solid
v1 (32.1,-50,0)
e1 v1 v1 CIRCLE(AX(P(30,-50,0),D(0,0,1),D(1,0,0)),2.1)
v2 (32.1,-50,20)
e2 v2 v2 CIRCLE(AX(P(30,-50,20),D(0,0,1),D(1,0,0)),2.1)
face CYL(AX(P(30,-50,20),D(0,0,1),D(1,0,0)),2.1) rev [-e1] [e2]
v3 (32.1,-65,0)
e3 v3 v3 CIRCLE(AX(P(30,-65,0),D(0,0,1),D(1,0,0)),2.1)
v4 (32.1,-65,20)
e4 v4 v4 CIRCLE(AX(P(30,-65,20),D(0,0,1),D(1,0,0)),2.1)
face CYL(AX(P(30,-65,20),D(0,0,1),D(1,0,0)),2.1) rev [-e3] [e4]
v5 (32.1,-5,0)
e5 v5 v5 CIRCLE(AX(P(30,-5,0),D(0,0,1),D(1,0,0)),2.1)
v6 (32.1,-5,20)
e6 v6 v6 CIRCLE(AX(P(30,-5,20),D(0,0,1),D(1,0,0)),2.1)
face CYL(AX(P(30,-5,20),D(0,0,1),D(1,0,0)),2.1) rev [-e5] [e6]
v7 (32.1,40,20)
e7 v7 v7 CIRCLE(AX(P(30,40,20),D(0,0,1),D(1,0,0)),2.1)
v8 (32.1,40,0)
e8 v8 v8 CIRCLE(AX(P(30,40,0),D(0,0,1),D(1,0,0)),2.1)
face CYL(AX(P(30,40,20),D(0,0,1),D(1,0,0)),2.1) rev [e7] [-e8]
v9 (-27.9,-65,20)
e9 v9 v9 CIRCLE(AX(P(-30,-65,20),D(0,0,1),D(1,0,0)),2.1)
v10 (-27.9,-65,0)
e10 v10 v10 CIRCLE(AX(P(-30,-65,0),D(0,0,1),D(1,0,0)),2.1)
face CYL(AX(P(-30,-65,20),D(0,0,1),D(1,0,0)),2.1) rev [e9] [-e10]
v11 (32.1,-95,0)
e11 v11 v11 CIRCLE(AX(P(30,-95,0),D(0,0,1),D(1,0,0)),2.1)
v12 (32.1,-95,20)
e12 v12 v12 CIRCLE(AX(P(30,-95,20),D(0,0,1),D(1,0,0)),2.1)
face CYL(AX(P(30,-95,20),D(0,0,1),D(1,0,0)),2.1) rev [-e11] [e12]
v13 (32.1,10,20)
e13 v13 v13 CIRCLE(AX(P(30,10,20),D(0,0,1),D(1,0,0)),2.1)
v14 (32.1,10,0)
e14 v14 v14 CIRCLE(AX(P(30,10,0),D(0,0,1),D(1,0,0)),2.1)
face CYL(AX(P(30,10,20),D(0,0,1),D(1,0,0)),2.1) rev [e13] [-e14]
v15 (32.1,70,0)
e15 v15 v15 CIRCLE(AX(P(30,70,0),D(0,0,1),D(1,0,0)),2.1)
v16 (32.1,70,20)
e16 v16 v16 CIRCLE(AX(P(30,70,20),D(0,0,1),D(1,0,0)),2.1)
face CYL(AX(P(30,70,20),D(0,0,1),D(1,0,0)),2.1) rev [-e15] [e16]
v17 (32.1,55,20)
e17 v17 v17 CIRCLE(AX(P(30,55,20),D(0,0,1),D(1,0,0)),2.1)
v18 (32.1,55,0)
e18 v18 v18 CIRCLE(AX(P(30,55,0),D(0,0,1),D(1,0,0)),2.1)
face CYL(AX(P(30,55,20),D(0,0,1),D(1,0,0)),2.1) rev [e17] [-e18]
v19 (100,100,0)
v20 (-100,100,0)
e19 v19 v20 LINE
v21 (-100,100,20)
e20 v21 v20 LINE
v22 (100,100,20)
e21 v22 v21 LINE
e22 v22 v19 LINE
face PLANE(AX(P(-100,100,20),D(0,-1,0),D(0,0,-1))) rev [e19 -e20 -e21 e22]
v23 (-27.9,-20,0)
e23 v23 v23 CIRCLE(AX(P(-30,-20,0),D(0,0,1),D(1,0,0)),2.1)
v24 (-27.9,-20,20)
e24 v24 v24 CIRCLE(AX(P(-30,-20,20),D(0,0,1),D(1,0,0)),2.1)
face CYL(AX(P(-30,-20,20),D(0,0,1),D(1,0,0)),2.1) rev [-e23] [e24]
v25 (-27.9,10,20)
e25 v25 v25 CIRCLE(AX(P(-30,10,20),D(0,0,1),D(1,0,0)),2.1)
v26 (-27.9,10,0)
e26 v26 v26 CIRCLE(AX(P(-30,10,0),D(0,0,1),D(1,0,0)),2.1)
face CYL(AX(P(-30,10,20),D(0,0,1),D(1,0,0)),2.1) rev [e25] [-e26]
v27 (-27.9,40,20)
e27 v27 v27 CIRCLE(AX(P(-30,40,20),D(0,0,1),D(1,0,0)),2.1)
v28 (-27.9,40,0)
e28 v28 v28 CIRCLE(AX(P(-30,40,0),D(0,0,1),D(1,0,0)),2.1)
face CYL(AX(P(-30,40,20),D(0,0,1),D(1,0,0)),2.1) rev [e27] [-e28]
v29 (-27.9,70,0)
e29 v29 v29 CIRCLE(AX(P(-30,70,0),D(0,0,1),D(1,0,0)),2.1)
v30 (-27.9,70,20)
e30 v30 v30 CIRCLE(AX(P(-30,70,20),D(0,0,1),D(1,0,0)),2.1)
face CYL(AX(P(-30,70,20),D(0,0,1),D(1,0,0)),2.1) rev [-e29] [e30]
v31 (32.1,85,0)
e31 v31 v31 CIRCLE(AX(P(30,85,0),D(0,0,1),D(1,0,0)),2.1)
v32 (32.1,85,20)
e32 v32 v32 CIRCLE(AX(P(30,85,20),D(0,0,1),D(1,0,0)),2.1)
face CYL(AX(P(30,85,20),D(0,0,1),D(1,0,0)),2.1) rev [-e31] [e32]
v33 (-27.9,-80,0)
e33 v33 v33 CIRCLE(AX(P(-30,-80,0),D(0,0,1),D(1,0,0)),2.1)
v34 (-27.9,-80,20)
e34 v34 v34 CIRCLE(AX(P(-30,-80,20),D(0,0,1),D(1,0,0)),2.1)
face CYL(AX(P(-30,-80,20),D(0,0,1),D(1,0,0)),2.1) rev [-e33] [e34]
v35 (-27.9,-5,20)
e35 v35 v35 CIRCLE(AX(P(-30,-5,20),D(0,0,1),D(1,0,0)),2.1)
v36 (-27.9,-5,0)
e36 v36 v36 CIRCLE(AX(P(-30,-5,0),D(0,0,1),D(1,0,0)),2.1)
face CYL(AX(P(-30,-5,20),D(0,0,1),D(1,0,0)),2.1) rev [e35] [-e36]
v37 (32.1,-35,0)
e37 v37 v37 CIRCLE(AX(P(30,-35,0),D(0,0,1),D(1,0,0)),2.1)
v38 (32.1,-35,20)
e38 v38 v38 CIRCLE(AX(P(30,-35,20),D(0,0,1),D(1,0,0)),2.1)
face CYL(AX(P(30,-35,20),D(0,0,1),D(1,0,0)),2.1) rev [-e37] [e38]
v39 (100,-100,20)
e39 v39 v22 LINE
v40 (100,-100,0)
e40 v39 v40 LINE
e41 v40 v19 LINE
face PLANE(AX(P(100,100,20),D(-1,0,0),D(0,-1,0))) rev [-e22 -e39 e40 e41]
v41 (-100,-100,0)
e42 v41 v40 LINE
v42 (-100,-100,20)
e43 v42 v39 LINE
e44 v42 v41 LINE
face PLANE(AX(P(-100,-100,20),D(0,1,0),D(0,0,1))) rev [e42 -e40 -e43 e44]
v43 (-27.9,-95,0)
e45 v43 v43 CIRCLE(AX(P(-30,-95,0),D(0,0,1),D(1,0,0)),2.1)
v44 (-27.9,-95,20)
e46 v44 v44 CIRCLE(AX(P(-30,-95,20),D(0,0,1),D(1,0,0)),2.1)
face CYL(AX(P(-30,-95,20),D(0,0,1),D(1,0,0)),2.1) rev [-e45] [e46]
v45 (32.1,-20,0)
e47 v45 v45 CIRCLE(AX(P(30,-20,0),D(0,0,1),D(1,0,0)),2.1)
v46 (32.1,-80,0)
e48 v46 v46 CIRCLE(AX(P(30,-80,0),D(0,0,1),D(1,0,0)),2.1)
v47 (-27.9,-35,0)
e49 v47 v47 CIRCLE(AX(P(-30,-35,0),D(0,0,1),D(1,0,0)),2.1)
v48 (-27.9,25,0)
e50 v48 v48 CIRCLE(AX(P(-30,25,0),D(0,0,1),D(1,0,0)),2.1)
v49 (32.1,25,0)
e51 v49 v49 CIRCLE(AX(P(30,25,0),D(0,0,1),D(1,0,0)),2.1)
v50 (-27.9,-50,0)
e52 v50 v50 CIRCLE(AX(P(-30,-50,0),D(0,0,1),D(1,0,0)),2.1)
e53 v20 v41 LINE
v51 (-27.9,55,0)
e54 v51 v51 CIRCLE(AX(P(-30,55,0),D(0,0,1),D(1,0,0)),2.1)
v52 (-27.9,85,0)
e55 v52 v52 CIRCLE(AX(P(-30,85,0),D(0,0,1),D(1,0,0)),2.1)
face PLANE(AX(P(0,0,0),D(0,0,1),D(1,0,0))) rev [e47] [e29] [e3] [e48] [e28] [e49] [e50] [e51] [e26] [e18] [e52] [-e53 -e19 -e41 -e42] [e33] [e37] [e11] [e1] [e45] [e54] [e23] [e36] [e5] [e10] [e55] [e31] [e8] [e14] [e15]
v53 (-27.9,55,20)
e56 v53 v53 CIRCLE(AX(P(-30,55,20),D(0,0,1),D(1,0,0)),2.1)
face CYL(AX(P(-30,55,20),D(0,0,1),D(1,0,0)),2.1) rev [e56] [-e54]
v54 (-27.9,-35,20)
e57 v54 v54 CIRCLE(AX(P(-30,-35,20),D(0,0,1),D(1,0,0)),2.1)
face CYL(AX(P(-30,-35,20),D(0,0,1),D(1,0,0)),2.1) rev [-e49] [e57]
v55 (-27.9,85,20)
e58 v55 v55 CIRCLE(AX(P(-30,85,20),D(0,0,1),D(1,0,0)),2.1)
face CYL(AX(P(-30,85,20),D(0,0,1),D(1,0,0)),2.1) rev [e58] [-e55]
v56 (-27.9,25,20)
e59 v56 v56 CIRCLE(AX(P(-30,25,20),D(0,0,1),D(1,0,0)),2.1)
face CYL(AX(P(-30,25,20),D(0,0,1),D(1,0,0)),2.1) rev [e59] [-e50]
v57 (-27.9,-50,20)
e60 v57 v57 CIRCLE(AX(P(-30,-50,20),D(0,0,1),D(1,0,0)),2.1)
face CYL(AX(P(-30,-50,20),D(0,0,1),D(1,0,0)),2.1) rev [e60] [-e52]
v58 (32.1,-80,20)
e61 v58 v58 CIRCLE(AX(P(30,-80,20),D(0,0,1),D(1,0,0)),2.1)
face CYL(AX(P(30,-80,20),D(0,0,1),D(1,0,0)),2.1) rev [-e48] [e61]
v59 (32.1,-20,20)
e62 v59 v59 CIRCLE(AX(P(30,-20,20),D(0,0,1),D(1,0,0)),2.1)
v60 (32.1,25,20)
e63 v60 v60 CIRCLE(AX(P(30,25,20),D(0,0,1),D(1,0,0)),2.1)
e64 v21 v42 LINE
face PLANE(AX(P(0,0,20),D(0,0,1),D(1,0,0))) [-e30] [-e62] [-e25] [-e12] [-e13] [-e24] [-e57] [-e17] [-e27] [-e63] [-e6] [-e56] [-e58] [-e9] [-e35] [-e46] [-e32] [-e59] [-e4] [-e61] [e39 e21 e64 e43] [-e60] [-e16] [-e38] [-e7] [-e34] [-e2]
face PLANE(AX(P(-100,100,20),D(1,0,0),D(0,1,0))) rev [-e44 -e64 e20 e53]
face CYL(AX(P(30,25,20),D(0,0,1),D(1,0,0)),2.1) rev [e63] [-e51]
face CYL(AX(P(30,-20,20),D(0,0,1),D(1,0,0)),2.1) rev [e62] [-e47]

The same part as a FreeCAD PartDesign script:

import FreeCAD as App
import Part
import Sketcher
from FreeCAD import Vector
Q = App.Units.Quantity

doc = App.newDocument("Part")
body = doc.addObject("PartDesign::Body", "Body")

# Sketch on XY plane
sketch1 = doc.addObject("Sketcher::SketchObject", "Sketch")
body.addObject(sketch1)
sketch1.AttachmentSupport = (doc.XY_Plane, [""])
sketch1.MapMode = "FlatFace"
sketch1.addGeometry([
    Part.LineSegment(Vector(-100, 100, 0), Vector(-100, -100, 0)),
    Part.LineSegment(Vector(-100, -100, 0), Vector(100, -100, 0)),
    Part.LineSegment(Vector(100, -100, 0), Vector(100, 100, 0)),
    Part.LineSegment(Vector(100, 100, 0), Vector(-100, 100, 0)),
], False)
sketch1.addConstraint([
    Sketcher.Constraint("Coincident", 0, 2, 1, 1),
    Sketcher.Constraint("Coincident", 1, 2, 2, 1),
    Sketcher.Constraint("Coincident", 2, 2, 3, 1),
    Sketcher.Constraint("Coincident", 3, 2, 0, 1),
    Sketcher.Constraint("Vertical", 0),
    Sketcher.Constraint("Horizontal", 1),
    Sketcher.Constraint("Vertical", 2),
    Sketcher.Constraint("Horizontal", 3),
    Sketcher.Constraint("Symmetric", 0, 2, 2, 2, -1, 1),
    Sketcher.Constraint("Equal", 3, 0),
    Sketcher.Constraint("DistanceX", 1, 1, 1, 2, Q("200 mm")),
])
pad1 = doc.addObject("PartDesign::Pad", "Pad")
body.addObject(pad1)
pad1.Profile = sketch1
pad1.Length = 20

# Sketch on XY plane
sketch2 = doc.addObject("Sketcher::SketchObject", "Sketch001")
body.addObject(sketch2)
sketch2.AttachmentSupport = (doc.XY_Plane, [""])
sketch2.MapMode = "FlatFace"
sketch2.AttachmentOffset = App.Placement(Vector(0, 0, 20), App.Rotation())
sketch2.addGeometry(Part.Circle(Vector(30, -95, 0), Vector(0, 0, 1), 2.1), False)
sketch2.addConstraint([
    Sketcher.Constraint("Diameter", 0, Q("4.2 mm")),
    Sketcher.Constraint("DistanceX", -1, 1, 0, 3, Q("30 mm")),
    Sketcher.Constraint("DistanceY", 0, 3, -1, 1, Q("95 mm")),
])
doc.recompute()
hole = doc.addObject("PartDesign::Hole", "Hole")
body.addObject(hole)
hole.Profile = sketch2
hole.ThreadType = "None"
hole.Diameter = 4.2
hole.DepthType = "ThroughAll"
doc.recompute()

linearpattern = doc.addObject("PartDesign::LinearPattern", "LinearPattern")
body.addObject(linearpattern)
linearpattern.Originals = [hole]
linearpattern.Direction = (doc.Y_Axis, [""])
linearpattern.Mode = "offset"
linearpattern.Offset = 15
linearpattern.Occurrences = 13
body.Tip = linearpattern
doc.recompute()

mirrored = doc.addObject("PartDesign::Mirrored", "Mirrored")
body.addObject(mirrored)
mirrored.Originals = [hole]
mirrored.MirrorPlane = (doc.YZ_Plane, [""])
body.Tip = mirrored

# Sketch on XY plane
sketch3 = doc.addObject("Sketcher::SketchObject", "Sketch002")
body.addObject(sketch3)
sketch3.AttachmentSupport = (doc.XY_Plane, [""])
sketch3.MapMode = "FlatFace"
sketch3.AttachmentOffset = App.Placement(Vector(0, 0, 20), App.Rotation())
sketch3.addGeometry(Part.Circle(Vector(-30, -80, 0), Vector(0, 0, 1), 2.1), False)
sketch3.addConstraint([
    Sketcher.Constraint("Diameter", 0, Q("4.2 mm")),
    Sketcher.Constraint("DistanceX", 0, 3, -1, 1, Q("30 mm")),
    Sketcher.Constraint("DistanceY", 0, 3, -1, 1, Q("80 mm")),
])
doc.recompute()
hole2 = doc.addObject("PartDesign::Hole", "Hole001")
body.addObject(hole2)
hole2.Profile = sketch3
hole2.ThreadType = "None"
hole2.Diameter = 4.2
hole2.DepthType = "ThroughAll"

# Sketch on XY plane
sketch4 = doc.addObject("Sketcher::SketchObject", "Sketch003")
body.addObject(sketch4)
sketch4.AttachmentSupport = (doc.XY_Plane, [""])
sketch4.MapMode = "FlatFace"
sketch4.AttachmentOffset = App.Placement(Vector(0, 0, 20), App.Rotation())
sketch4.addGeometry(Part.Circle(Vector(-30, -65, 0), Vector(0, 0, 1), 2.1), False)
sketch4.addConstraint([
    Sketcher.Constraint("Diameter", 0, Q("4.2 mm")),
    Sketcher.Constraint("DistanceX", 0, 3, -1, 1, Q("30 mm")),
    Sketcher.Constraint("DistanceY", 0, 3, -1, 1, Q("65 mm")),
])
doc.recompute()
hole3 = doc.addObject("PartDesign::Hole", "Hole002")
body.addObject(hole3)
hole3.Profile = sketch4
hole3.ThreadType = "None"
hole3.Diameter = 4.2
hole3.DepthType = "ThroughAll"

# Sketch on XY plane
sketch5 = doc.addObject("Sketcher::SketchObject", "Sketch004")
body.addObject(sketch5)
sketch5.AttachmentSupport = (doc.XY_Plane, [""])
sketch5.MapMode = "FlatFace"
sketch5.AttachmentOffset = App.Placement(Vector(0, 0, 20), App.Rotation())
sketch5.addGeometry(Part.Circle(Vector(-30, -50, 0), Vector(0, 0, 1), 2.1), False)
sketch5.addConstraint([
    Sketcher.Constraint("Diameter", 0, Q("4.2 mm")),
    Sketcher.Constraint("DistanceX", 0, 3, -1, 1, Q("30 mm")),
    Sketcher.Constraint("DistanceY", 0, 3, -1, 1, Q("50 mm")),
])
doc.recompute()
hole4 = doc.addObject("PartDesign::Hole", "Hole003")
body.addObject(hole4)
hole4.Profile = sketch5
hole4.ThreadType = "None"
hole4.Diameter = 4.2
hole4.DepthType = "ThroughAll"

# Sketch on XY plane
sketch6 = doc.addObject("Sketcher::SketchObject", "Sketch005")
body.addObject(sketch6)
sketch6.AttachmentSupport = (doc.XY_Plane, [""])
sketch6.MapMode = "FlatFace"
sketch6.AttachmentOffset = App.Placement(Vector(0, 0, 20), App.Rotation())
sketch6.addGeometry(Part.Circle(Vector(-30, -35, 0), Vector(0, 0, 1), 2.1), False)
sketch6.addConstraint([
    Sketcher.Constraint("Diameter", 0, Q("4.2 mm")),
    Sketcher.Constraint("DistanceX", 0, 3, -1, 1, Q("30 mm")),
    Sketcher.Constraint("DistanceY", 0, 3, -1, 1, Q("35 mm")),
])
doc.recompute()
hole5 = doc.addObject("PartDesign::Hole", "Hole004")
body.addObject(hole5)
hole5.Profile = sketch6
hole5.ThreadType = "None"
hole5.Diameter = 4.2
hole5.DepthType = "ThroughAll"

# Sketch on XY plane
sketch7 = doc.addObject("Sketcher::SketchObject", "Sketch006")
body.addObject(sketch7)
sketch7.AttachmentSupport = (doc.XY_Plane, [""])
sketch7.MapMode = "FlatFace"
sketch7.AttachmentOffset = App.Placement(Vector(0, 0, 20), App.Rotation())
sketch7.addGeometry(Part.Circle(Vector(-30, -20, 0), Vector(0, 0, 1), 2.1), False)
sketch7.addConstraint([
    Sketcher.Constraint("Diameter", 0, Q("4.2 mm")),
    Sketcher.Constraint("DistanceX", 0, 3, -1, 1, Q("30 mm")),
    Sketcher.Constraint("DistanceY", 0, 3, -1, 1, Q("20 mm")),
])
doc.recompute()
hole6 = doc.addObject("PartDesign::Hole", "Hole005")
body.addObject(hole6)
hole6.Profile = sketch7
hole6.ThreadType = "None"
hole6.Diameter = 4.2
hole6.DepthType = "ThroughAll"

# Sketch on XY plane
sketch8 = doc.addObject("Sketcher::SketchObject", "Sketch007")
body.addObject(sketch8)
sketch8.AttachmentSupport = (doc.XY_Plane, [""])
sketch8.MapMode = "FlatFace"
sketch8.AttachmentOffset = App.Placement(Vector(0, 0, 20), App.Rotation())
sketch8.addGeometry(Part.Circle(Vector(-30, -5, 0), Vector(0, 0, 1), 2.1), False)
sketch8.addConstraint([
    Sketcher.Constraint("Diameter", 0, Q("4.2 mm")),
    Sketcher.Constraint("DistanceX", 0, 3, -1, 1, Q("30 mm")),
    Sketcher.Constraint("DistanceY", 0, 3, -1, 1, Q("5 mm")),
])
doc.recompute()
hole7 = doc.addObject("PartDesign::Hole", "Hole006")
body.addObject(hole7)
hole7.Profile = sketch8
hole7.ThreadType = "None"
hole7.Diameter = 4.2
hole7.DepthType = "ThroughAll"

# Sketch on XY plane
sketch9 = doc.addObject("Sketcher::SketchObject", "Sketch008")
body.addObject(sketch9)
sketch9.AttachmentSupport = (doc.XY_Plane, [""])
sketch9.MapMode = "FlatFace"
sketch9.AttachmentOffset = App.Placement(Vector(0, 0, 20), App.Rotation())
sketch9.addGeometry(Part.Circle(Vector(-30, 10, 0), Vector(0, 0, 1), 2.1), False)
sketch9.addConstraint([
    Sketcher.Constraint("Diameter", 0, Q("4.2 mm")),
    Sketcher.Constraint("DistanceX", 0, 3, -1, 1, Q("30 mm")),
    Sketcher.Constraint("DistanceY", -1, 1, 0, 3, Q("10 mm")),
])
doc.recompute()
hole8 = doc.addObject("PartDesign::Hole", "Hole007")
body.addObject(hole8)
hole8.Profile = sketch9
hole8.ThreadType = "None"
hole8.Diameter = 4.2
hole8.DepthType = "ThroughAll"

# Sketch on XY plane
sketch10 = doc.addObject("Sketcher::SketchObject", "Sketch009")
body.addObject(sketch10)
sketch10.AttachmentSupport = (doc.XY_Plane, [""])
sketch10.MapMode = "FlatFace"
sketch10.AttachmentOffset = App.Placement(Vector(0, 0, 20), App.Rotation())
sketch10.addGeometry(Part.Circle(Vector(-30, 25, 0), Vector(0, 0, 1), 2.1), False)
sketch10.addConstraint([
    Sketcher.Constraint("Diameter", 0, Q("4.2 mm")),
    Sketcher.Constraint("DistanceX", 0, 3, -1, 1, Q("30 mm")),
    Sketcher.Constraint("DistanceY", -1, 1, 0, 3, Q("25 mm")),
])
doc.recompute()
hole9 = doc.addObject("PartDesign::Hole", "Hole008")
body.addObject(hole9)
hole9.Profile = sketch10
hole9.ThreadType = "None"
hole9.Diameter = 4.2
hole9.DepthType = "ThroughAll"

# Sketch on XY plane
sketch11 = doc.addObject("Sketcher::SketchObject", "Sketch010")
body.addObject(sketch11)
sketch11.AttachmentSupport = (doc.XY_Plane, [""])
sketch11.MapMode = "FlatFace"
sketch11.AttachmentOffset = App.Placement(Vector(0, 0, 20), App.Rotation())
sketch11.addGeometry(Part.Circle(Vector(-30, 40, 0), Vector(0, 0, 1), 2.1), False)
sketch11.addConstraint([
    Sketcher.Constraint("Diameter", 0, Q("4.2 mm")),
    Sketcher.Constraint("DistanceX", 0, 3, -1, 1, Q("30 mm")),
    Sketcher.Constraint("DistanceY", -1, 1, 0, 3, Q("40 mm")),
])
doc.recompute()
hole10 = doc.addObject("PartDesign::Hole", "Hole009")
body.addObject(hole10)
hole10.Profile = sketch11
hole10.ThreadType = "None"
hole10.Diameter = 4.2
hole10.DepthType = "ThroughAll"

# Sketch on XY plane
sketch12 = doc.addObject("Sketcher::SketchObject", "Sketch011")
body.addObject(sketch12)
sketch12.AttachmentSupport = (doc.XY_Plane, [""])
sketch12.MapMode = "FlatFace"
sketch12.AttachmentOffset = App.Placement(Vector(0, 0, 20), App.Rotation())
sketch12.addGeometry(Part.Circle(Vector(-30, 55, 0), Vector(0, 0, 1), 2.1), False)
sketch12.addConstraint([
    Sketcher.Constraint("Diameter", 0, Q("4.2 mm")),
    Sketcher.Constraint("DistanceX", 0, 3, -1, 1, Q("30 mm")),
    Sketcher.Constraint("DistanceY", -1, 1, 0, 3, Q("55 mm")),
])
doc.recompute()
hole11 = doc.addObject("PartDesign::Hole", "Hole010")
body.addObject(hole11)
hole11.Profile = sketch12
hole11.ThreadType = "None"
hole11.Diameter = 4.2
hole11.DepthType = "ThroughAll"

# Sketch on XY plane
sketch13 = doc.addObject("Sketcher::SketchObject", "Sketch012")
body.addObject(sketch13)
sketch13.AttachmentSupport = (doc.XY_Plane, [""])
sketch13.MapMode = "FlatFace"
sketch13.AttachmentOffset = App.Placement(Vector(0, 0, 20), App.Rotation())
sketch13.addGeometry(Part.Circle(Vector(-30, 70, 0), Vector(0, 0, 1), 2.1), False)
sketch13.addConstraint([
    Sketcher.Constraint("Diameter", 0, Q("4.2 mm")),
    Sketcher.Constraint("DistanceX", 0, 3, -1, 1, Q("30 mm")),
    Sketcher.Constraint("DistanceY", -1, 1, 0, 3, Q("70 mm")),
])
doc.recompute()
hole12 = doc.addObject("PartDesign::Hole", "Hole011")
body.addObject(hole12)
hole12.Profile = sketch13
hole12.ThreadType = "None"
hole12.Diameter = 4.2
hole12.DepthType = "ThroughAll"

# Sketch on XY plane
sketch14 = doc.addObject("Sketcher::SketchObject", "Sketch013")
body.addObject(sketch14)
sketch14.AttachmentSupport = (doc.XY_Plane, [""])
sketch14.MapMode = "FlatFace"
sketch14.AttachmentOffset = App.Placement(Vector(0, 0, 20), App.Rotation())
sketch14.addGeometry(Part.Circle(Vector(-30, 85, 0), Vector(0, 0, 1), 2.1), False)
sketch14.addConstraint([
    Sketcher.Constraint("Diameter", 0, Q("4.2 mm")),
    Sketcher.Constraint("DistanceX", 0, 3, -1, 1, Q("30 mm")),
    Sketcher.Constraint("DistanceY", -1, 1, 0, 3, Q("85 mm")),
])
doc.recompute()
hole13 = doc.addObject("PartDesign::Hole", "Hole012")
body.addObject(hole13)
hole13.Profile = sketch14
hole13.ThreadType = "None"
hole13.Diameter = 4.2
hole13.DepthType = "ThroughAll"

doc.recompute()
